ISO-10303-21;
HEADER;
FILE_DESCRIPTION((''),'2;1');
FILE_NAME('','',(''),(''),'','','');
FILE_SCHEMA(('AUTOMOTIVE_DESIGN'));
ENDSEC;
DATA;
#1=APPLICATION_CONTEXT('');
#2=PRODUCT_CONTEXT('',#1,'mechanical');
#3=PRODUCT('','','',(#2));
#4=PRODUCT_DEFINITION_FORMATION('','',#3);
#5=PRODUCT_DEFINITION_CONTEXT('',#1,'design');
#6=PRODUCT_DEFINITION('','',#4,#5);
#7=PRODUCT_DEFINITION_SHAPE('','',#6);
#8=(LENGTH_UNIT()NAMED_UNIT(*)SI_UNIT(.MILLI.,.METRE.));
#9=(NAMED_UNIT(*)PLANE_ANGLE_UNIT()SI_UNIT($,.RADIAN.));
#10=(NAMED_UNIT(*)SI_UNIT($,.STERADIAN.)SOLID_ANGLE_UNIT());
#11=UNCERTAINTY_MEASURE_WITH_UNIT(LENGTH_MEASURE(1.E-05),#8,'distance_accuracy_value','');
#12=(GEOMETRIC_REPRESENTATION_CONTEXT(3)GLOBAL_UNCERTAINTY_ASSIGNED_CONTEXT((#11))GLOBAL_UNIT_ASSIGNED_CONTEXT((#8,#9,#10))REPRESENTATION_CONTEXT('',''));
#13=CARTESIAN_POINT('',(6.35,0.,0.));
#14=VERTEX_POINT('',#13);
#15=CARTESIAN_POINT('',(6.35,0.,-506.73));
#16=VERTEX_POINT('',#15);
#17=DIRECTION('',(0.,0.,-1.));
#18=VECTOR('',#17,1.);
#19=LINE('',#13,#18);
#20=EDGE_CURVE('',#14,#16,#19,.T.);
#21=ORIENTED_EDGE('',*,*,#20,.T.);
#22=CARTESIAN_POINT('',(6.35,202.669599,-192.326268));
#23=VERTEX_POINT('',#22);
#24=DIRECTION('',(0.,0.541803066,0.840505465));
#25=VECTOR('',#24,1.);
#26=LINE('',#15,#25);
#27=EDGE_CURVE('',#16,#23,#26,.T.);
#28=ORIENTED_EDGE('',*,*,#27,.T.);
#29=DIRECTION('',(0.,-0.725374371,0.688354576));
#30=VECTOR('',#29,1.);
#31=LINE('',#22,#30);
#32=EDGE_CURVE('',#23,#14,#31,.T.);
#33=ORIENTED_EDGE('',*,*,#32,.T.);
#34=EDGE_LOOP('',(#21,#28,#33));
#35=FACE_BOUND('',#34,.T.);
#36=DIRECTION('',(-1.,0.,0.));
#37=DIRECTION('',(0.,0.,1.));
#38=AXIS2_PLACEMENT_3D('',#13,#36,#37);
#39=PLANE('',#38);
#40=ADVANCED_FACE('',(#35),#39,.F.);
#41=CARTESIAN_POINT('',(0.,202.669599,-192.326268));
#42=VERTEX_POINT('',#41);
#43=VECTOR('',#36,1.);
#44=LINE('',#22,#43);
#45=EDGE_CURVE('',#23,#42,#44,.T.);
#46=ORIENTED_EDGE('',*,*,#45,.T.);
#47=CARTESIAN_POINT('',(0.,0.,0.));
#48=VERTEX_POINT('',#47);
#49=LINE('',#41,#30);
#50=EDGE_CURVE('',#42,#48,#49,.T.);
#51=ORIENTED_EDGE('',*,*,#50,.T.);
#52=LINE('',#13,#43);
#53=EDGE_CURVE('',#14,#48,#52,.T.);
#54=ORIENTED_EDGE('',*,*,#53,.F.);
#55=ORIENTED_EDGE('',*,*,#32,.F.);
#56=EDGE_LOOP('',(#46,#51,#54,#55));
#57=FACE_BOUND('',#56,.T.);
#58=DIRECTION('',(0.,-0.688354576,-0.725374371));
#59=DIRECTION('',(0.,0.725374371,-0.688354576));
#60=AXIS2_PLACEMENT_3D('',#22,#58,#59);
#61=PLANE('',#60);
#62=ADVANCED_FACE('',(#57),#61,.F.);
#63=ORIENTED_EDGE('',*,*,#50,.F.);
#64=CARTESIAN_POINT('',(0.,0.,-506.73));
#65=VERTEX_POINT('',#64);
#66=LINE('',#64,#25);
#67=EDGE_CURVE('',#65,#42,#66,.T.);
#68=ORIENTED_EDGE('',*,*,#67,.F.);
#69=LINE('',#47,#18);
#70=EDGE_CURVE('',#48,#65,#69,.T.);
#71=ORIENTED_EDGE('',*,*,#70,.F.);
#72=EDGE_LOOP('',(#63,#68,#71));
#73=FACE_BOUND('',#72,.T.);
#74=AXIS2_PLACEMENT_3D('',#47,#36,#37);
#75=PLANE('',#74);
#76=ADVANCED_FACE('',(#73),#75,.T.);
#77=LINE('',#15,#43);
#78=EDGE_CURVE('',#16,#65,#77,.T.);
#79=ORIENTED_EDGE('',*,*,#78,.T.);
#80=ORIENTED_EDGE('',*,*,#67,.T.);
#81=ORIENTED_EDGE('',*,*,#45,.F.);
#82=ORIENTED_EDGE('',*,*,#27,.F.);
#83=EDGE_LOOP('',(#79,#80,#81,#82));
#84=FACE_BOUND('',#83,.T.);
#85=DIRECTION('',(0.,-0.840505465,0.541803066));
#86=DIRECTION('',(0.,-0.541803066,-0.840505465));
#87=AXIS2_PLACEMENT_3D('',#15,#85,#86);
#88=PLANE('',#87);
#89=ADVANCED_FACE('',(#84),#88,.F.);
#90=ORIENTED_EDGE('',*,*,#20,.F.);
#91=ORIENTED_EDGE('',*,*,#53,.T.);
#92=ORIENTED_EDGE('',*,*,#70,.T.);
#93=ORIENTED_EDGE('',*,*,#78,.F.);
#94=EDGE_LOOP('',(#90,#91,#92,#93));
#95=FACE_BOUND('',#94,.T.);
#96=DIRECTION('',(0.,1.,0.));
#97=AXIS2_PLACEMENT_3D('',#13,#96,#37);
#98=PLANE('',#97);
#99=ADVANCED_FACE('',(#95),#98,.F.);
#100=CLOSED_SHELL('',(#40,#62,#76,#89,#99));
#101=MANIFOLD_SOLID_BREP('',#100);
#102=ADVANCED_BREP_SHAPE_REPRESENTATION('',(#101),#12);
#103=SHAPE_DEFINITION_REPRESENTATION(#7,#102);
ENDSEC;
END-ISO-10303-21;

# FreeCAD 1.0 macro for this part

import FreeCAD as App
import Part
import Sketcher
from FreeCAD import Vector
Q = App.Units.Quantity


def add_polygon(sketch, points):
    """Adds a closed chain of lines whose ends are joined by coincident constraints."""
    first, n = sketch.GeometryCount, len(points)
    for a, b in zip(points, points[1:] + points[:1]):
        sketch.addGeometry(Part.LineSegment(App.Vector(*a, 0), App.Vector(*b, 0)), False)
    for i in range(n):
        sketch.addConstraint(Sketcher.Constraint("Coincident", first + i, 2, first + (i + 1) % n, 1))

doc = App.newDocument("Part")
body = doc.addObject("PartDesign::Body", "Body")

# Sketch on YZ plane
sketch1 = body.newObject("Sketcher::SketchObject", "Sketch")
sketch1.AttachmentSupport = (doc.getObject("YZ_Plane"), [""])
sketch1.MapMode = "FlatFace"
add_polygon(sketch1, [(0, 0), (0, -507), (203, -192)])  # lines 0-2
sketch1.addConstraint([
    Sketcher.Constraint("Vertical", 0),
    Sketcher.Constraint("Coincident", 2, 2, -1, 1),
    Sketcher.Constraint("Distance", 2, Q("11 in")),
    Sketcher.Constraint("DistanceY", 0, 2, 0, 1, Q("19.95 in")),
    Sketcher.Constraint("Angle", 2, Q("136.5 deg")),
])
pad1 = body.newObject("PartDesign::Pad", "Pad")
pad1.Profile = sketch1
pad1.Length = Q("0.25 in")

doc.recompute()
